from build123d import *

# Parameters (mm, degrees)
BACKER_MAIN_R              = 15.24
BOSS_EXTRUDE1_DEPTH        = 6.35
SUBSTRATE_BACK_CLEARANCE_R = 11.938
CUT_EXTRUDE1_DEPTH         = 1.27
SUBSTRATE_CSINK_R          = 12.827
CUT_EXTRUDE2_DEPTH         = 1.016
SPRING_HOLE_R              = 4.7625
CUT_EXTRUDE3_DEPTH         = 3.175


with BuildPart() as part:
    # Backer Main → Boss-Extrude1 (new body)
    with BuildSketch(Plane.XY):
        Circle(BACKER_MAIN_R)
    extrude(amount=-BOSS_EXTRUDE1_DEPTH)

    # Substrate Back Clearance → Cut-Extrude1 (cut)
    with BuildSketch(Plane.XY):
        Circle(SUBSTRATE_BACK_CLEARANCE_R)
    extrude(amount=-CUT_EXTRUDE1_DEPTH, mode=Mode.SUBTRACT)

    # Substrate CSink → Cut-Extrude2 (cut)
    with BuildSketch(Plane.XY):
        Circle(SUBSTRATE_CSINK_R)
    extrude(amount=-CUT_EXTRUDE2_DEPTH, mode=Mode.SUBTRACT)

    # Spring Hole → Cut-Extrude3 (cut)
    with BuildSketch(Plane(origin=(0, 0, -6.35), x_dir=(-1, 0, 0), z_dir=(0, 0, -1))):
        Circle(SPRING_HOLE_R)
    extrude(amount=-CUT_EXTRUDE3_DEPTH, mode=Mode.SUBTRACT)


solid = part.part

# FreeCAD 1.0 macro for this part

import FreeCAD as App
import Part
import Sketcher
Q = App.Units.Quantity

doc = App.newDocument("Part")
body = doc.addObject("PartDesign::Body", "Body")

# Sketch on XY plane
sketch1 = body.newObject("Sketcher::SketchObject", "Sketch")
sketch1.AttachmentSupport = (doc.getObject("XY_Plane"), [""])
sketch1.MapMode = "FlatFace"
sketch1.addGeometry(Part.Circle(App.Vector(0, 0, 0), App.Vector(0, 0, 1), 15), False)
sketch1.addConstraint([
    Sketcher.Constraint("Coincident", 0, 3, -1, 1),
    Sketcher.Constraint("Diameter", 0, Q("1.2 in")),
])
pad1 = body.newObject("PartDesign::Pad", "Pad")
pad1.Profile = sketch1
pad1.Length = Q("0.25 in")
pad1.Reversed = True

# Sketch on XY plane
sketch2 = body.newObject("Sketcher::SketchObject", "Sketch001")
sketch2.AttachmentSupport = (doc.getObject("XY_Plane"), [""])
sketch2.MapMode = "FlatFace"
sketch2.addGeometry(Part.Circle(App.Vector(0, 0, 0), App.Vector(0, 0, 1), 12), False)
sketch2.addConstraint([
    Sketcher.Constraint("Coincident", 0, 3, -1, 1),
    Sketcher.Constraint("Diameter", 0, Q("0.94 in")),
])
pocket1 = body.newObject("PartDesign::Pocket", "Pocket")
pocket1.Profile = sketch2
pocket1.Length = Q("0.05 in")

# Sketch on XY plane
sketch3 = body.newObject("Sketcher::SketchObject", "Sketch002")
sketch3.AttachmentSupport = (doc.getObject("XY_Plane"), [""])
sketch3.MapMode = "FlatFace"
sketch3.addGeometry(Part.Circle(App.Vector(0, 0, 0), App.Vector(0, 0, 1), 13), False)
sketch3.addConstraint([
    Sketcher.Constraint("Coincident", 0, 3, -1, 1),
    Sketcher.Constraint("Diameter", 0, Q("1.01 in")),
])
pocket2 = body.newObject("PartDesign::Pocket", "Pocket001")
pocket2.Profile = sketch3
pocket2.Length = Q("0.04 in")

# Sketch on XY plane
sketch4 = body.newObject("Sketcher::SketchObject", "Sketch003")
sketch4.AttachmentSupport = (doc.getObject("XY_Plane"), [""])
sketch4.MapMode = "FlatFace"
sketch4.AttachmentOffset = App.Placement(App.Vector(0, 0, -0.25 * 25.4), App.Rotation())
sketch4.addGeometry(Part.Circle(App.Vector(0, 0, 0), App.Vector(0, 0, 1), 4.8), False)
sketch4.addConstraint([
    Sketcher.Constraint("Coincident", 0, 3, -1, 1),
    Sketcher.Constraint("Diameter", 0, Q("0.375 in")),
])
pocket3 = body.newObject("PartDesign::Pocket", "Pocket002")
pocket3.Profile = sketch4
pocket3.Length = Q("0.125 in")
pocket3.Reversed = True

doc.recompute()
